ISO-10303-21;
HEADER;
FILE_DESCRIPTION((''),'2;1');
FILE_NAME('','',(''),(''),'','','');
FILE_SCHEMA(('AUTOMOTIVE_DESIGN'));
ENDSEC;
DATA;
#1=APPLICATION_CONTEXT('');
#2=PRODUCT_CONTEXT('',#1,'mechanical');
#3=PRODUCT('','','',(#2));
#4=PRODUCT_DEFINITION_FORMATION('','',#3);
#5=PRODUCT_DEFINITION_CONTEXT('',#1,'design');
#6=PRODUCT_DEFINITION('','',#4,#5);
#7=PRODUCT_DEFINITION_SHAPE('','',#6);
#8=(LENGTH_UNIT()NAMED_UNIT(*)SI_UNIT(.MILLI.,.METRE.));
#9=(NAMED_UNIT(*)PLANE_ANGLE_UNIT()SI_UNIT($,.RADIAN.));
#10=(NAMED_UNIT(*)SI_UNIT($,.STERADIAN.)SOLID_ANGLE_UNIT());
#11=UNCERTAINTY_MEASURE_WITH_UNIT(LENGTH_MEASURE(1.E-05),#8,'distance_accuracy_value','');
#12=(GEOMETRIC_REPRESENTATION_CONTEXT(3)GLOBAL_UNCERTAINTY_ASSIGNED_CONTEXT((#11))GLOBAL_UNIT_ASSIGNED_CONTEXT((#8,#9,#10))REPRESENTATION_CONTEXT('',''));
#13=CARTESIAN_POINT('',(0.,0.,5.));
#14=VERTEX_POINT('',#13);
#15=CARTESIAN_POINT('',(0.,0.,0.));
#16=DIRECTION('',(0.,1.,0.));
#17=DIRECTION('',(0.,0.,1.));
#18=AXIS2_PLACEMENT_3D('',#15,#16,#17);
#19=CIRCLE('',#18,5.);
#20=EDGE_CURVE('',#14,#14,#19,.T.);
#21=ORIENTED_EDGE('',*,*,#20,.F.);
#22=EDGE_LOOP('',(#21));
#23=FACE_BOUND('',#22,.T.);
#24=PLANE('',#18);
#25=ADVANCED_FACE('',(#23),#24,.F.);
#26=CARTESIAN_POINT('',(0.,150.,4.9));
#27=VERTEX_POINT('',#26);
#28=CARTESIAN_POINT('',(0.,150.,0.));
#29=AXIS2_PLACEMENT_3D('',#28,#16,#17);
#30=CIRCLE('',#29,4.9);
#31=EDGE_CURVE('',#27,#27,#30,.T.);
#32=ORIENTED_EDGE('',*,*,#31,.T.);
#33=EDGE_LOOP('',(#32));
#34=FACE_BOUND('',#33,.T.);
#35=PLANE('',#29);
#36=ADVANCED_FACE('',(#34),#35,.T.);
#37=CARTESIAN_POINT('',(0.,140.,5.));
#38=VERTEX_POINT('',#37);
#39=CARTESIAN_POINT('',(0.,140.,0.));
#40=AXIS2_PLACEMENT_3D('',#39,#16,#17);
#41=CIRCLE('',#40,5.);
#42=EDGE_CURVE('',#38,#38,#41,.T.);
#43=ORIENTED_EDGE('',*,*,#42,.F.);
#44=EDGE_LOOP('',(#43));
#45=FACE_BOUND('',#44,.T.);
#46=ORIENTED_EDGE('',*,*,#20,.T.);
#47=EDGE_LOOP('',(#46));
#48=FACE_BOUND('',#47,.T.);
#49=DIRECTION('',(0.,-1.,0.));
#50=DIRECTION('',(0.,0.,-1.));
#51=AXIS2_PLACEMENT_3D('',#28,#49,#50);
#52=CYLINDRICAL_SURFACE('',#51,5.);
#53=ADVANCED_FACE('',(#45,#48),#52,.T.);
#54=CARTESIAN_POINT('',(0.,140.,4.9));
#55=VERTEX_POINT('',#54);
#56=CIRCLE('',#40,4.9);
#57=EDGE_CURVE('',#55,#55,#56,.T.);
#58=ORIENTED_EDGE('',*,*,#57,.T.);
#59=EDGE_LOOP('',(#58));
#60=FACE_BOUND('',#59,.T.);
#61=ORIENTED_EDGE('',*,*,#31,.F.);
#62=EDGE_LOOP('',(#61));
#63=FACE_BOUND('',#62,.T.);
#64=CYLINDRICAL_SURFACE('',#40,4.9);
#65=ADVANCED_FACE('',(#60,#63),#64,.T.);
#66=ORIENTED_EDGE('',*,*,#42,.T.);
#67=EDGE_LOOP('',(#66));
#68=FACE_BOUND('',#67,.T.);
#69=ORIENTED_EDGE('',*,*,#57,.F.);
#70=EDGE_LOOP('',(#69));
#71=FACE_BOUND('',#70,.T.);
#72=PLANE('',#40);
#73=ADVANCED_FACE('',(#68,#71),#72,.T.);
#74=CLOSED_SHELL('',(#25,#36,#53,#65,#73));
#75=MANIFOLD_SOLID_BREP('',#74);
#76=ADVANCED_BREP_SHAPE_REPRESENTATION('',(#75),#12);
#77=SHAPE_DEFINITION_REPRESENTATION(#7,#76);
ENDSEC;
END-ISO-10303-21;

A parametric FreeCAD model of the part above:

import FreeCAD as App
import Part
import Sketcher
Q = App.Units.Quantity

doc = App.newDocument("Part")
body = doc.addObject("PartDesign::Body", "Body")

# Sketch on XZ plane
sketch1 = body.newObject("Sketcher::SketchObject", "Sketch")
sketch1.AttachmentSupport = (doc.getObject("XZ_Plane"), [""])
sketch1.MapMode = "FlatFace"
sketch1.addGeometry(Part.Circle(App.Vector(0, 0, 0), App.Vector(0, 0, 1), 5), False)
sketch1.addConstraint(Sketcher.Constraint("Coincident", 0, 3, -1, 1))
sketch1.addConstraint(Sketcher.Constraint("Diameter", 0, Q("10 mm")))
pad1 = body.newObject("PartDesign::Pad", "Pad")
pad1.Profile = sketch1
pad1.Length = 150
pad1.Reversed = True

# Sketch on XZ plane
sketch2 = body.newObject("Sketcher::SketchObject", "Sketch001")
sketch2.AttachmentSupport = (doc.getObject("XZ_Plane"), [""])
sketch2.MapMode = "FlatFace"
sketch2.AttachmentOffset = App.Placement(App.Vector(0, 0, -150), App.Rotation())
sketch2.addGeometry(Part.Circle(App.Vector(0, 0, 0), App.Vector(0, 0, 1), 5), False)
sketch2.addGeometry(Part.Circle(App.Vector(0, 0, 0), App.Vector(0, 0, 1), 4.9), False)
sketch2.addConstraint(Sketcher.Constraint("Coincident", 0, 3, -1, 1))
sketch2.addConstraint(Sketcher.Constraint("Coincident", 1, 3, -1, 1))
sketch2.addConstraint(Sketcher.Constraint("Diameter", 0, Q("10 mm")))
sketch2.addConstraint(Sketcher.Constraint("Diameter", 1, Q("9.8 mm")))
pocket1 = body.newObject("PartDesign::Pocket", "Pocket")
pocket1.Profile = sketch2
pocket1.Length = 10
pocket1.Reversed = True

doc.recompute()
